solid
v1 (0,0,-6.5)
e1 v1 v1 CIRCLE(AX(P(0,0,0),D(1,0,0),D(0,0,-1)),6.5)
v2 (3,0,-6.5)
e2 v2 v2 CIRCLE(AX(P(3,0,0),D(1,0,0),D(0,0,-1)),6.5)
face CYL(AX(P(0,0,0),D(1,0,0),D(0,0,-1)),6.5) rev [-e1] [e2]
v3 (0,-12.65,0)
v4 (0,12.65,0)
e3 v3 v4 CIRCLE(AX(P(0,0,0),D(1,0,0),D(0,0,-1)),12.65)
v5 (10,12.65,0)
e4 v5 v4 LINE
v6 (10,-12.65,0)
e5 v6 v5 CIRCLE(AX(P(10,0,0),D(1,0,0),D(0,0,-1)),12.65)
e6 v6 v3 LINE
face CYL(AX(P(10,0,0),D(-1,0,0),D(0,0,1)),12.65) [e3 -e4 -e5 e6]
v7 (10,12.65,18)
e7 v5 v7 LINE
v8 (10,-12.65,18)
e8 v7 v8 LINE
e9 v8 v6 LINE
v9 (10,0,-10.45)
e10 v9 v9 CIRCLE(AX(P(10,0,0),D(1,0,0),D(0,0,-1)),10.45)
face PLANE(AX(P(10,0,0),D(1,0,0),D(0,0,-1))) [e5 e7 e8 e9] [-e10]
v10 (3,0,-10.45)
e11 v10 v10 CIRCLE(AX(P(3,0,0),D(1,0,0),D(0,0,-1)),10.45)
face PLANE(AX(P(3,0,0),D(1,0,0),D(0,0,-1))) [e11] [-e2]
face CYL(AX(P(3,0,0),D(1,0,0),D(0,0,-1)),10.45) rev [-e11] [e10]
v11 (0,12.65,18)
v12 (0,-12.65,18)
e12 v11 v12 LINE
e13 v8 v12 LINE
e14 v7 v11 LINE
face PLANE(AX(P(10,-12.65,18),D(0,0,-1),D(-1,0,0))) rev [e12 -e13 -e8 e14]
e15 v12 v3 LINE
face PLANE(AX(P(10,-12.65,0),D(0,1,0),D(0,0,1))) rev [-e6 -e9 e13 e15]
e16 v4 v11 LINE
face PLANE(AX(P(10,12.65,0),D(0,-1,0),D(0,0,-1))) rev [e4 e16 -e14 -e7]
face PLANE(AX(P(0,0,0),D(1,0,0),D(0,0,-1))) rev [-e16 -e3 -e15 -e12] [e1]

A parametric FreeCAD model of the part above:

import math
import FreeCAD as App
import Part
import Sketcher
Q = App.Units.Quantity

doc = App.newDocument("Part")
params = doc.addObject("Spreadsheet::Sheet", "Params")
for row, (alias, value) in enumerate([
    ("sketch1_height", "18 mm"),
    ("sketch1_radius", "12.65 mm"),
    ("pad1_length", "10 mm"),
    ("sketch2_diameter", "20.9 mm"),
    ("pocket1_length", "7 mm"),
    ("sketch3_diameter", "13 mm"),
], start=1):
    params.set(f"A{row}", alias)
    params.set(f"B{row}", "=" + value)
    params.setAlias(f"B{row}", alias)

body = doc.addObject("PartDesign::Body", "Body")

# Sketch on YZ plane
sketch1 = body.newObject("Sketcher::SketchObject", "Sketch")
sketch1.AttachmentSupport = (doc.getObject("YZ_Plane"), [""])
sketch1.MapMode = "FlatFace"
sketch1.addGeometry(Part.LineSegment(App.Vector(-13, 18, 0), App.Vector(-13, 0, 0)), False)
sketch1.addGeometry(Part.ArcOfCircle(Part.Circle(App.Vector(0, 0, 0), App.Vector(0, 0, 1), 13), math.radians(180), math.radians(360)), False)
sketch1.addGeometry(Part.LineSegment(App.Vector(13, 0, 0), App.Vector(13, 18, 0)), False)
sketch1.addGeometry(Part.LineSegment(App.Vector(13, 18, 0), App.Vector(-13, 18, 0)), False)
sketch1.addConstraint(Sketcher.Constraint("Tangent", 0, 2, 1, 1))
sketch1.addConstraint(Sketcher.Constraint("Tangent", 1, 2, 2, 1))
sketch1.addConstraint(Sketcher.Constraint("Coincident", 2, 2, 3, 1))
sketch1.addConstraint(Sketcher.Constraint("Coincident", 3, 2, 0, 1))
sketch1.addConstraint(Sketcher.Constraint("Vertical", 0))
sketch1.addConstraint(Sketcher.Constraint("Vertical", 2))
sketch1.addConstraint(Sketcher.Constraint("Horizontal", 3))
sketch1.addConstraint(Sketcher.Constraint("Coincident", 1, 3, -1, 1))
sketch1.addConstraint(Sketcher.Constraint("DistanceY", 0, 2, 0, 1, Q("18 mm")))
sketch1.addConstraint(Sketcher.Constraint("Radius", 1, Q("12.65 mm")))
sketch1.setExpression("Constraints[8]", "Params.sketch1_height")
sketch1.setExpression("Constraints[9]", "Params.sketch1_radius")
pad1 = body.newObject("PartDesign::Pad", "Pad")
pad1.Profile = sketch1
pad1.setExpression("Length", "Params.pad1_length")

# Sketch on YZ plane
sketch2 = body.newObject("Sketcher::SketchObject", "Sketch001")
sketch2.AttachmentSupport = (doc.getObject("YZ_Plane"), [""])
sketch2.MapMode = "FlatFace"
sketch2.AttachmentOffset = App.Placement(App.Vector(0, 0, 10), App.Rotation())
sketch2.addGeometry(Part.Circle(App.Vector(0, 0, 0), App.Vector(0, 0, 1), 10), False)
sketch2.addConstraint(Sketcher.Constraint("Coincident", 0, 3, -1, 1))
sketch2.addConstraint(Sketcher.Constraint("Diameter", 0, Q("20.9 mm")))
sketch2.setExpression("Constraints[1]", "Params.sketch2_diameter")
pocket1 = body.newObject("PartDesign::Pocket", "Pocket")
pocket1.Profile = sketch2
pocket1.setExpression("Length", "Params.pocket1_length")

# Sketch on YZ plane
sketch3 = body.newObject("Sketcher::SketchObject", "Sketch002")
sketch3.AttachmentSupport = (doc.getObject("YZ_Plane"), [""])
sketch3.MapMode = "FlatFace"
sketch3.AttachmentOffset = App.Placement(App.Vector(0, 0, 3), App.Rotation())
sketch3.addGeometry(Part.Circle(App.Vector(0, 0, 0), App.Vector(0, 0, 1), 6), False)
sketch3.addConstraint(Sketcher.Constraint("Coincident", 0, 3, -1, 1))
sketch3.addConstraint(Sketcher.Constraint("Diameter", 0, Q("13 mm")))
sketch3.setExpression("Constraints[1]", "Params.sketch3_diameter")
pocket2 = body.newObject("PartDesign::Pocket", "Pocket001")
pocket2.Profile = sketch3
pocket2.Type = "ThroughAll"

doc.recompute()
